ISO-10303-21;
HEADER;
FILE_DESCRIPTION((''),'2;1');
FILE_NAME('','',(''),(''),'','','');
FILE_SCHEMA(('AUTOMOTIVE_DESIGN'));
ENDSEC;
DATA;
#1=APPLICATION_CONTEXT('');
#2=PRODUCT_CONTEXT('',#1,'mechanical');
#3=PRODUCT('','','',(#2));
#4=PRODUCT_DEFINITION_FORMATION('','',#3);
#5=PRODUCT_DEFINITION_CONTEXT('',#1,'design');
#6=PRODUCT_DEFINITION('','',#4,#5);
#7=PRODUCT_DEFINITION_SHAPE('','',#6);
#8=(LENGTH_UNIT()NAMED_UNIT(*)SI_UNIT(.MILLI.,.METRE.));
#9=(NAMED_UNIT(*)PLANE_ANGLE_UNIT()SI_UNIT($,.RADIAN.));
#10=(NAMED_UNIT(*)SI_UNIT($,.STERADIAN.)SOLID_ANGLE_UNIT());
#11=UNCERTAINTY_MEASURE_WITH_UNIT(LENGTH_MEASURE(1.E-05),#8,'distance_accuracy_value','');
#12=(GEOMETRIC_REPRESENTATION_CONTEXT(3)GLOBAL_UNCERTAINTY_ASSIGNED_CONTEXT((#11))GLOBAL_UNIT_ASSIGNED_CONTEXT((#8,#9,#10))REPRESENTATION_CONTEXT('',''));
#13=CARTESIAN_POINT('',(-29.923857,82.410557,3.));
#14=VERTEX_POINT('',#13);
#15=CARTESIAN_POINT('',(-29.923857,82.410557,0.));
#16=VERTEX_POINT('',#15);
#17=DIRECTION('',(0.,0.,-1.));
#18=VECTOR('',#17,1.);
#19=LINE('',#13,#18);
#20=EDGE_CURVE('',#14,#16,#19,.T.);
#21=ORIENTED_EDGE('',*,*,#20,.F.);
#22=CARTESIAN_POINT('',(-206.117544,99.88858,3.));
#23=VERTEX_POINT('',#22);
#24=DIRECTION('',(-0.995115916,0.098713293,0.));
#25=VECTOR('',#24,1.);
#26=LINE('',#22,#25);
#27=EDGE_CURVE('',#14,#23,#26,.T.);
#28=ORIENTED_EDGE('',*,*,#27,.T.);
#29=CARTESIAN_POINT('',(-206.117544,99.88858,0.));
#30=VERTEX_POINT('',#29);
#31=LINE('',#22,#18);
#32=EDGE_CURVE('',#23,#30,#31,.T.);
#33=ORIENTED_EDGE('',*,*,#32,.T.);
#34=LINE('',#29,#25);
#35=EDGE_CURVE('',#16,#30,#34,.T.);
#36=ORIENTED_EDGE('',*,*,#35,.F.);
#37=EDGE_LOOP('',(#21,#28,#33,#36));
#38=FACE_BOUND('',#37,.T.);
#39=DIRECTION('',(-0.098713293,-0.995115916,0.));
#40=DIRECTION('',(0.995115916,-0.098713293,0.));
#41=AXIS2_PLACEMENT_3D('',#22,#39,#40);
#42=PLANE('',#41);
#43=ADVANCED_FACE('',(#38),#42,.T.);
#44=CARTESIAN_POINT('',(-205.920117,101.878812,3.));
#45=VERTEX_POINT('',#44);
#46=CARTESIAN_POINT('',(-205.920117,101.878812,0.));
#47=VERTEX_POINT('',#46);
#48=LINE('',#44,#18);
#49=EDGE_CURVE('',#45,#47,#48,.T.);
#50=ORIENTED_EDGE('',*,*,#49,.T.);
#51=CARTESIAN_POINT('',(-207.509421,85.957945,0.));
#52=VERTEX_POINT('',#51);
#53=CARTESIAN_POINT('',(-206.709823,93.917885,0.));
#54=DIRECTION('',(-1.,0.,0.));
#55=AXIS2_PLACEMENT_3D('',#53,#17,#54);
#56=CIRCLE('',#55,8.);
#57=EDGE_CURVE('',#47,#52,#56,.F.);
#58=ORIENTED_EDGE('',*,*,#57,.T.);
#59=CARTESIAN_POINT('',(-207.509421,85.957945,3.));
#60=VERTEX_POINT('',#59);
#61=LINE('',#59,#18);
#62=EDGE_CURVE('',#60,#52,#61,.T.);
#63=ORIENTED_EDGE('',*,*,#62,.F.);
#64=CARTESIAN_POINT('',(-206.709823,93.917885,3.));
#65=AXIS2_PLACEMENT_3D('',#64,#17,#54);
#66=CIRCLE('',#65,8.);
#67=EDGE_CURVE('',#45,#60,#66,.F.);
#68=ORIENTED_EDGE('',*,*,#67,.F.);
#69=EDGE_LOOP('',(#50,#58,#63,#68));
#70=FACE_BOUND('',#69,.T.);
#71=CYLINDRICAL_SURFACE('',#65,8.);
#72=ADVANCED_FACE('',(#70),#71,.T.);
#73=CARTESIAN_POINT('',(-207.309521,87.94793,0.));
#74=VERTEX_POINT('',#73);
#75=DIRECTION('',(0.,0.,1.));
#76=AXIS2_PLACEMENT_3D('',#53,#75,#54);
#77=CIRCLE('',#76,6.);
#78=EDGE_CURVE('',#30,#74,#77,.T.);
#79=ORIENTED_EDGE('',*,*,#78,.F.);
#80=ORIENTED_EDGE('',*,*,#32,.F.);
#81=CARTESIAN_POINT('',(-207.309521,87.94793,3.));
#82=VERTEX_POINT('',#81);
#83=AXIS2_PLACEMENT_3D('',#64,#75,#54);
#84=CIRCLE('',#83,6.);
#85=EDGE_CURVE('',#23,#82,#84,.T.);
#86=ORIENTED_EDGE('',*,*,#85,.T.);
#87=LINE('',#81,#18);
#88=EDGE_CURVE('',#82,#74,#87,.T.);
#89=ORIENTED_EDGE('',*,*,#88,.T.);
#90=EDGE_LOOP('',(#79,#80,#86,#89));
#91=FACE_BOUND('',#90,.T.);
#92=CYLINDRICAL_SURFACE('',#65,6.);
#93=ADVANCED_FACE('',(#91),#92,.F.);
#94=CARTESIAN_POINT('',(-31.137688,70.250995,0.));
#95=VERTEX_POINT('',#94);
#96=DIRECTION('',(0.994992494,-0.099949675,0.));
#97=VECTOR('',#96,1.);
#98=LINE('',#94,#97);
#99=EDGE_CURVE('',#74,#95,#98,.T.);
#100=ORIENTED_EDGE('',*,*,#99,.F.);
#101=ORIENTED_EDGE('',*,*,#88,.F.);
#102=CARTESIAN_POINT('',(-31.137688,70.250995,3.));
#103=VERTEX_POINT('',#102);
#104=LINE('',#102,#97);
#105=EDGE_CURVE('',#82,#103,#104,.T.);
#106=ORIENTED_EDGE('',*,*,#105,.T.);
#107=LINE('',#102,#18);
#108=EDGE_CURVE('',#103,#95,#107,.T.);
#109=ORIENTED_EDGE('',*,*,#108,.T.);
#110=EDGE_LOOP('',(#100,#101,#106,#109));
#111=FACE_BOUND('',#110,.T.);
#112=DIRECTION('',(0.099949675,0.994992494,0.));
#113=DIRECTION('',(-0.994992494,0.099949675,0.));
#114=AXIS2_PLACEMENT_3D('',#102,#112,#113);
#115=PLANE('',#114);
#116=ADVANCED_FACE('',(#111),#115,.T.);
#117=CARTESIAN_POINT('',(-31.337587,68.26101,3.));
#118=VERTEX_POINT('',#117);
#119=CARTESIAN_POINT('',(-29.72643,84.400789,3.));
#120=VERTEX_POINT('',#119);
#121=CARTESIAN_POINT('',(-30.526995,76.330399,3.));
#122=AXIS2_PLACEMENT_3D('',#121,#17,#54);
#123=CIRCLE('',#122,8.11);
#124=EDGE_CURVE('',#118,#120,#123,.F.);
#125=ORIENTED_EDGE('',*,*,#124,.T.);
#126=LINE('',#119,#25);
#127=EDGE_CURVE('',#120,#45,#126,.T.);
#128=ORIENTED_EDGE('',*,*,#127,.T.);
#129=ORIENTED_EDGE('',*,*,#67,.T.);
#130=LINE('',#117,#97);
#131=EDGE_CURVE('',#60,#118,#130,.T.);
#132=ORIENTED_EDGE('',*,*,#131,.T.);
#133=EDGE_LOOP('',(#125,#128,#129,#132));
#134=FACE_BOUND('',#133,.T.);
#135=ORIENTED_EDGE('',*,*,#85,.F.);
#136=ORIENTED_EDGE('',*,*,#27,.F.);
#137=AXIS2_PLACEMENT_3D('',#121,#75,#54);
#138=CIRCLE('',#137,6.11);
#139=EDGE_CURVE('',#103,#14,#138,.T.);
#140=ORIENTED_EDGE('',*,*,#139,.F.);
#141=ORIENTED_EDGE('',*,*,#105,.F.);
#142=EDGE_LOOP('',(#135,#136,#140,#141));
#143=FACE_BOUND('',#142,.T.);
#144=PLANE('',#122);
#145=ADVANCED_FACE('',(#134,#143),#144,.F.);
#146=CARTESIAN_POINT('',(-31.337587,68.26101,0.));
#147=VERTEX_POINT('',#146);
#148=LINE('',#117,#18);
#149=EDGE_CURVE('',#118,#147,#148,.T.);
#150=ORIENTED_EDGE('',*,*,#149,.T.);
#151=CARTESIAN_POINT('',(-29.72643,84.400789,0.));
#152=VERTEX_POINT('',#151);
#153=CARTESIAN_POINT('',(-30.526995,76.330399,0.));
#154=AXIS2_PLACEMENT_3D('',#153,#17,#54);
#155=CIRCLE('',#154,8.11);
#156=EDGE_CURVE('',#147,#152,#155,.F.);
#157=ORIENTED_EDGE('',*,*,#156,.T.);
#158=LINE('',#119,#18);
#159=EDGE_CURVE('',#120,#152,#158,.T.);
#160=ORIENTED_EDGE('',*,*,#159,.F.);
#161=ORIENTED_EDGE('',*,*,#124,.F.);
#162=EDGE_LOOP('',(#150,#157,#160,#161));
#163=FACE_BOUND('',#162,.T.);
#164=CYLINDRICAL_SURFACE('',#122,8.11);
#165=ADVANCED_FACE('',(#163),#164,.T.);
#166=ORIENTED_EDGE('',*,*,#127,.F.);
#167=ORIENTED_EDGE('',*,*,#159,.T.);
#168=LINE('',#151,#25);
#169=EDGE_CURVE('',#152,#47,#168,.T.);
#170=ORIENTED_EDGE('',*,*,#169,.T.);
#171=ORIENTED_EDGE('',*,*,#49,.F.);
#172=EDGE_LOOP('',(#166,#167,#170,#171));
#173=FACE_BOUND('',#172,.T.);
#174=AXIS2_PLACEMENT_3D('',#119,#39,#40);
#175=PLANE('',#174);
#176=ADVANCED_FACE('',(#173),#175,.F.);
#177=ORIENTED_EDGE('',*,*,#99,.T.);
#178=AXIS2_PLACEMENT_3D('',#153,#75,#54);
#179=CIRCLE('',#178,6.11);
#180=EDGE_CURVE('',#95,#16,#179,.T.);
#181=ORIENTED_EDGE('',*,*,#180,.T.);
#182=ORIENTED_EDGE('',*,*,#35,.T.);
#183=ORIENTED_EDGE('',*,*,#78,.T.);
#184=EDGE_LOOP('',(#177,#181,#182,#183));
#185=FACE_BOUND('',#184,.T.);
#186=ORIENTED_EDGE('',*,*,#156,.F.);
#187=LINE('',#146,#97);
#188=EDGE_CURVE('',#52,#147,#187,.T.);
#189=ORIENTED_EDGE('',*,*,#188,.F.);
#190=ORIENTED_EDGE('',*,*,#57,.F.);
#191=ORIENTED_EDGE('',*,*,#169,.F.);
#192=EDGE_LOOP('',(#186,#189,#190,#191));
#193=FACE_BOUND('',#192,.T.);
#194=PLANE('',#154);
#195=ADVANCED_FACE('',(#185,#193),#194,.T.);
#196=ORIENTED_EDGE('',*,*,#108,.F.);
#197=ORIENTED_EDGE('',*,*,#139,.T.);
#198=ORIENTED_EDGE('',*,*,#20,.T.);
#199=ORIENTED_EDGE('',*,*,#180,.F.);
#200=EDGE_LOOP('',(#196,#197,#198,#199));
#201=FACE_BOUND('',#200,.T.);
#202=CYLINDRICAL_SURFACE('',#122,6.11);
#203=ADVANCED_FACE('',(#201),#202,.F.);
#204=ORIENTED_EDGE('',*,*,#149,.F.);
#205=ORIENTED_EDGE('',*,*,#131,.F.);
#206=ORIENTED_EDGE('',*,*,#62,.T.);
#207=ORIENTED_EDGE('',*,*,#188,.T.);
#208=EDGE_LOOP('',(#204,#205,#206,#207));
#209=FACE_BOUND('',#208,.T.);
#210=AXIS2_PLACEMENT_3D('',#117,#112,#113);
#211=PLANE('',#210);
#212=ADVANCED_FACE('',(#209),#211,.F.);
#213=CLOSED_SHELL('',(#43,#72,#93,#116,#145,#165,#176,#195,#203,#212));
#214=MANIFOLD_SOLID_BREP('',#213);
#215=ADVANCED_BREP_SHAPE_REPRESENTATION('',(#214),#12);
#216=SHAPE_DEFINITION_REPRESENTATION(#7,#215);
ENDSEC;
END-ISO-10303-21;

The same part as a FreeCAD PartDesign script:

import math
import FreeCAD as App
import Part
import Sketcher
from FreeCAD import Vector
Q = App.Units.Quantity

doc = App.newDocument("Part")
body = doc.addObject("PartDesign::Body", "Body")

sketch1 = body.newObject("Sketcher::SketchObject", "Sketch")
sketch1.AttachmentSupport = (doc.getObject("XY_Plane"), [""])
sketch1.MapMode = "FlatFace"
sketch1.addGeometry([
    Part.LineSegment(Vector(-29.72643, 84.400789, 0), Vector(-205.920117, 101.878812, 0)),
    Part.ArcOfCircle(Part.Circle(Vector(-206.709823, 93.917885, 0), Vector(0, 0, 1), 8), math.radians(84.334919), math.radians(264.263727)),
    Part.LineSegment(Vector(-207.509421, 85.957945, 0), Vector(-31.337587, 68.26101, 0)),
    Part.ArcOfCircle(Part.Circle(Vector(-30.526995, 76.330399, 0), Vector(0, 0, 1), 8.11), math.radians(-95.736273), math.radians(84.334919)),
    Part.LineSegment(Vector(-206.117544, 99.88858, 0), Vector(-29.923857, 82.410557, 0)),
    Part.ArcOfCircle(Part.Circle(Vector(-30.526995, 76.330399, 0), Vector(0, 0, 1), 6.11), math.radians(-95.736273), math.radians(84.334919)),
    Part.LineSegment(Vector(-31.137688, 70.250995, 0), Vector(-207.309521, 87.94793, 0)),
    Part.ArcOfCircle(Part.Circle(Vector(-206.709823, 93.917885, 0), Vector(0, 0, 1), 6), math.radians(84.334919), math.radians(264.263727)),
], False)
sketch1.addConstraint([
    Sketcher.Constraint("Tangent", 0, 2, 1, 1),
    Sketcher.Constraint("Tangent", 1, 2, 2, 1),
    Sketcher.Constraint("Tangent", 2, 2, 3, 1),
    Sketcher.Constraint("Tangent", 3, 2, 0, 1),
    Sketcher.Constraint("Tangent", 4, 2, 5, 2),
    Sketcher.Constraint("Tangent", 5, 1, 6, 1),
    Sketcher.Constraint("Tangent", 6, 2, 7, 2),
    Sketcher.Constraint("Tangent", 7, 1, 4, 1),
    Sketcher.Constraint("Coincident", 5, 3, 3, 3),
    Sketcher.Constraint("Coincident", 7, 3, 1, 3),
    Sketcher.Constraint("Parallel", 0, 4),
    Sketcher.Constraint("Radius", 1, Q("8 mm")),
    Sketcher.Constraint("Radius", 7, Q("6 mm")),
    Sketcher.Constraint("Radius", 3, Q("8.11 mm")),
    Sketcher.Constraint("DistanceY", -1, 1, 3, 3, Q("76.330399 mm")),
    Sketcher.Constraint("DistanceX", 6, 2, 7, 3, Q("0.599698 mm")),
    Sketcher.Constraint("DistanceX", 1, 2, -1, 1, Q("207.509421 mm")),
    Sketcher.Constraint("DistanceX", 3, 2, -1, 1, Q("29.72643 mm")),
])
pad1 = body.newObject("PartDesign::Pad", "Pad")
pad1.Profile = sketch1
pad1.Length = 3

doc.recompute()
